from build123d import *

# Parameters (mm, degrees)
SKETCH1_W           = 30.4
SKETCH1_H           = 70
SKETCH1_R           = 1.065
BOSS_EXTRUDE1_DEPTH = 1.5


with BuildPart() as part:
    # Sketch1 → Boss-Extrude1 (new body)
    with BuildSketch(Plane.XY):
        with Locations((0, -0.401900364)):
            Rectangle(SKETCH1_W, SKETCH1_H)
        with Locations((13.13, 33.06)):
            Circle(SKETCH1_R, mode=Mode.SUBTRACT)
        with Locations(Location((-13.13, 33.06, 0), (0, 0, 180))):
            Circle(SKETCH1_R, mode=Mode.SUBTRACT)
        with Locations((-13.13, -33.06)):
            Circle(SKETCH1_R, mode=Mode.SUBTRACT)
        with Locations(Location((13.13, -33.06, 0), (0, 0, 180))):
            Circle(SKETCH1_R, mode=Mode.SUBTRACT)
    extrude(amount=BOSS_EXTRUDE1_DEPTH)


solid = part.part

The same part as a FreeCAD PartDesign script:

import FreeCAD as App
import Part
import Sketcher
Q = App.Units.Quantity

doc = App.newDocument("Part")
body = doc.addObject("PartDesign::Body", "Body")

# Sketch on XY plane
sketch1 = body.newObject("Sketcher::SketchObject", "Sketch")
sketch1.AttachmentSupport = (doc.getObject("XY_Plane"), [""])
sketch1.MapMode = "FlatFace"
sketch1.addGeometry([
    Part.LineSegment(App.Vector(-15.2, 34.6, 0), App.Vector(-15.2, -35.4, 0)),  # 0
    Part.LineSegment(App.Vector(-15.2, -35.4, 0), App.Vector(15.2, -35.4, 0)),  # 1
    Part.LineSegment(App.Vector(15.2, -35.4, 0), App.Vector(15.2, 34.6, 0)),  # 2
    Part.LineSegment(App.Vector(15.2, 34.6, 0), App.Vector(-15.2, 34.6, 0)),  # 3
    Part.Circle(App.Vector(-13.1, -33.1, 0), App.Vector(0, 0, 1), 1.1),  # 4
    Part.Circle(App.Vector(13.1, -33.1, 0), App.Vector(0, 0, 1), 1.1),  # 5
    Part.Circle(App.Vector(-13.1, 33.1, 0), App.Vector(0, 0, 1), 1.1),  # 6
    Part.Circle(App.Vector(13.1, 33.1, 0), App.Vector(0, 0, 1), 1.1),  # 7
], False)
sketch1.addConstraint([
    Sketcher.Constraint("Coincident", 0, 2, 1, 1),
    Sketcher.Constraint("Coincident", 1, 2, 2, 1),
    Sketcher.Constraint("Coincident", 2, 2, 3, 1),
    Sketcher.Constraint("Coincident", 3, 2, 0, 1),
    Sketcher.Constraint("Vertical", 0),
    Sketcher.Constraint("Horizontal", 1),
    Sketcher.Constraint("Vertical", 2),
    Sketcher.Constraint("Horizontal", 3),
    Sketcher.Constraint("Equal", 4, 5),
    Sketcher.Constraint("Equal", 5, 6),
    Sketcher.Constraint("Equal", 6, 7),
    Sketcher.Constraint("Symmetric", 5, 3, 6, 3, -1, 1),
    Sketcher.Constraint("Symmetric", 4, 3, 7, 3, -1, 1),
    Sketcher.Constraint("Symmetric", 4, 3, 5, 3, -2),
    Sketcher.Constraint("Diameter", 4, Q("2.13 mm")),
    Sketcher.Constraint("DistanceY", 0, 2, 0, 1, Q("70 mm")),
    Sketcher.Constraint("DistanceX", 1, 1, 1, 2, Q("30.4 mm")),
    Sketcher.Constraint("DistanceX", 0, 2, -1, 1, Q("15.2 mm")),
    Sketcher.Constraint("DistanceX", 4, 3, -1, 1, Q("13.13 mm")),
    Sketcher.Constraint("DistanceY", 4, 3, -1, 1, Q("33.06 mm")),
    Sketcher.Constraint("DistanceY", 0, 2, -1, 1, Q("35.4019 mm")),
])
pad1 = body.newObject("PartDesign::Pad", "Pad")
pad1.Profile = sketch1
pad1.Length = 1.5

doc.recompute()
